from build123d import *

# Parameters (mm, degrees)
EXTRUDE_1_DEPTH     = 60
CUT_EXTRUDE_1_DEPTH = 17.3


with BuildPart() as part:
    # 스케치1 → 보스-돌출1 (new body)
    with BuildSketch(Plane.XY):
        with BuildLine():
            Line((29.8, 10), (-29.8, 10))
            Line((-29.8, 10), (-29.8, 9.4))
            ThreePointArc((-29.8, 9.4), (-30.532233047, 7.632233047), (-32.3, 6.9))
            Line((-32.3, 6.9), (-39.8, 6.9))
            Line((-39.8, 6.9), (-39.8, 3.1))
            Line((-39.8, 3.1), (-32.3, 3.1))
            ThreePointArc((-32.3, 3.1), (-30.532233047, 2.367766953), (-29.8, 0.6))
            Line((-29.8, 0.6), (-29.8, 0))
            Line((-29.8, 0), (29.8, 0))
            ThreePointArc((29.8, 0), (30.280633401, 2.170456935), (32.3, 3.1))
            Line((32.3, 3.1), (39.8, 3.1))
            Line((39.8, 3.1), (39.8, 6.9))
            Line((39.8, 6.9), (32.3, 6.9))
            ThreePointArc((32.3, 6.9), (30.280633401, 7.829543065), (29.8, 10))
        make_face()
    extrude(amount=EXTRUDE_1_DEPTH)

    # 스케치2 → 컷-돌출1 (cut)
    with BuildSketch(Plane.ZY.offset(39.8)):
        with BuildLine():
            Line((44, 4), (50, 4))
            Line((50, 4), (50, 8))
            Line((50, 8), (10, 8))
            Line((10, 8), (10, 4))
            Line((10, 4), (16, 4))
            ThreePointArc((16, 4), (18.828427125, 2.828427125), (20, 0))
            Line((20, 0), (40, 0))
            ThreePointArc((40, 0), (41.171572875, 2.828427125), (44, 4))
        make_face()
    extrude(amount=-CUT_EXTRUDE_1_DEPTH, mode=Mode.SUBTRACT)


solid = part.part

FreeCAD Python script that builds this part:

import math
import FreeCAD as App
import Part
import Sketcher

V = App.Vector
Q = App.Units.Quantity

doc = App.newDocument("Part")
body = doc.addObject("PartDesign::Body", "Body")

# Sketch on XY plane
sketch1 = body.newObject("Sketcher::SketchObject", "Sketch")
sketch1.AttachmentSupport = (doc.getObject("XY_Plane"), [""])
sketch1.MapMode = "FlatFace"
sketch1.addGeometry([
    Part.LineSegment(V(29.8, 10, 0), V(-29.8, 10, 0)),  # 0
    Part.LineSegment(V(-29.8, 10, 0), V(-29.8, 9.4, 0)),  # 1
    Part.ArcOfCircle(Part.Circle(V(-32.3, 9.4, 0), V(0, 0, 1), 2.5), math.radians(-90), math.radians(0)),  # 2
    Part.LineSegment(V(-32.3, 6.9, 0), V(-39.8, 6.9, 0)),  # 3
    Part.LineSegment(V(-39.8, 6.9, 0), V(-39.8, 3.1, 0)),  # 4
    Part.LineSegment(V(-39.8, 3.1, 0), V(-32.3, 3.1, 0)),  # 5
    Part.ArcOfCircle(Part.Circle(V(-32.3, 0.6, 0), V(0, 0, 1), 2.5), math.radians(0), math.radians(90)),  # 6
    Part.LineSegment(V(-29.8, 0.6, 0), V(-29.8, 0, 0)),  # 7
    Part.LineSegment(V(-29.8, 0, 0), V(29.8, 0, 0)),  # 8
    Part.ArcOfCircle(Part.Circle(V(32.226666, 0.601076, 0), V(0, 0, 1), 2.5), math.radians(88.319067), math.radians(193.91194)),  # 9
    Part.LineSegment(V(32.3, 3.1, 0), V(39.8, 3.1, 0)),  # 10
    Part.LineSegment(V(39.8, 3.1, 0), V(39.8, 6.9, 0)),  # 11
    Part.LineSegment(V(39.8, 6.9, 0), V(32.3, 6.9, 0)),  # 12
    Part.ArcOfCircle(Part.Circle(V(32.226666, 9.398924, 0), V(0, 0, 1), 2.5), math.radians(166.08806), math.radians(271.680933)),  # 13
], False)
sketch1.addConstraint([
    Sketcher.Constraint("Coincident", 0, 2, 1, 1),
    Sketcher.Constraint("Tangent", 1, 2, 2, 2),
    Sketcher.Constraint("Tangent", 2, 1, 3, 1),
    Sketcher.Constraint("Coincident", 3, 2, 4, 1),
    Sketcher.Constraint("Coincident", 4, 2, 5, 1),
    Sketcher.Constraint("Tangent", 5, 2, 6, 2),
    Sketcher.Constraint("Tangent", 6, 1, 7, 1),
    Sketcher.Constraint("Coincident", 7, 2, 8, 1),
    Sketcher.Constraint("Coincident", 8, 2, 9, 2),
    Sketcher.Constraint("Coincident", 9, 1, 10, 1),
    Sketcher.Constraint("Coincident", 10, 2, 11, 1),
    Sketcher.Constraint("Coincident", 11, 2, 12, 1),
    Sketcher.Constraint("Coincident", 12, 2, 13, 2),
    Sketcher.Constraint("Coincident", 13, 1, 0, 1),
    Sketcher.Constraint("Horizontal", 0),
    Sketcher.Constraint("Vertical", 1),
    Sketcher.Constraint("Horizontal", 3),
    Sketcher.Constraint("Vertical", 4),
    Sketcher.Constraint("Horizontal", 5),
    Sketcher.Constraint("Vertical", 7),
    Sketcher.Constraint("Horizontal", 8),
    Sketcher.Constraint("Horizontal", 10),
    Sketcher.Constraint("Vertical", 11),
    Sketcher.Constraint("Horizontal", 12),
    Sketcher.Constraint("Equal", 2, 6),
    Sketcher.Constraint("Equal", 6, 9),
    Sketcher.Constraint("Equal", 9, 13),
    Sketcher.Constraint("Symmetric", 7, 2, 8, 2, -1, 1),
    Sketcher.Constraint("Symmetric", 5, 2, 9, 1, -2),
    Sketcher.Constraint("Symmetric", 3, 2, 11, 2, -2),
    Sketcher.Constraint("Vertical", 2, 3, 6, 3),
    Sketcher.Constraint("Vertical", 9, 3, 13, 3),
    Sketcher.Constraint("Vertical", 9, 1, 12, 2),
    Sketcher.Constraint("Vertical", 8, 2, 13, 1),
    Sketcher.Constraint("Radius", 2, Q("2.5 mm")),
    Sketcher.Constraint("DistanceX", 0, 2, 0, 1, Q("59.6 mm")),
    Sketcher.Constraint("DistanceX", 3, 2, 3, 1, Q("7.5 mm")),
    Sketcher.Constraint("DistanceY", 1, 2, 1, 1, Q("0.6 mm")),
    Sketcher.Constraint("DistanceY", 4, 2, 4, 1, Q("3.8 mm")),
])
pad1 = body.newObject("PartDesign::Pad", "Pad")
pad1.Profile = sketch1
pad1.Length = 60

# Sketch on YZ plane
sketch2 = body.newObject("Sketcher::SketchObject", "Sketch001")
sketch2.AttachmentSupport = (doc.getObject("YZ_Plane"), [""])
sketch2.MapMode = "FlatFace"
sketch2.AttachmentOffset = App.Placement(V(0, 0, -39.8), App.Rotation())
sketch2.addGeometry([
    Part.LineSegment(V(4, 44, 0), V(4, 50, 0)),  # 0
    Part.LineSegment(V(4, 50, 0), V(8, 50, 0)),  # 1
    Part.LineSegment(V(8, 50, 0), V(8, 10, 0)),  # 2
    Part.LineSegment(V(8, 10, 0), V(4, 10, 0)),  # 3
    Part.LineSegment(V(4, 10, 0), V(4, 16, 0)),  # 4
    Part.ArcOfCircle(Part.Circle(V(0, 16, 0), V(0, 0, 1), 4), math.radians(0), math.radians(90)),  # 5
    Part.LineSegment(V(0, 20, 0), V(0, 40, 0)),  # 6
    Part.ArcOfCircle(Part.Circle(V(0, 44, 0), V(0, 0, 1), 4), math.radians(-90), math.radians(0)),  # 7
], False)
sketch2.addConstraint([
    Sketcher.Constraint("Coincident", 0, 2, 1, 1),
    Sketcher.Constraint("Coincident", 1, 2, 2, 1),
    Sketcher.Constraint("Coincident", 2, 2, 3, 1),
    Sketcher.Constraint("Coincident", 3, 2, 4, 1),
    Sketcher.Constraint("Tangent", 4, 2, 5, 1),
    Sketcher.Constraint("Coincident", 5, 2, 6, 1),
    Sketcher.Constraint("Coincident", 6, 2, 7, 1),
    Sketcher.Constraint("Tangent", 7, 2, 0, 1),
    Sketcher.Constraint("Vertical", 0),
    Sketcher.Constraint("Horizontal", 1),
    Sketcher.Constraint("Vertical", 2),
    Sketcher.Constraint("Horizontal", 3),
    Sketcher.Constraint("Vertical", 4),
    Sketcher.Constraint("Vertical", 6),
    Sketcher.Constraint("Equal", 5, 7),
    Sketcher.Constraint("PointOnObject", 5, 3, -2),
    Sketcher.Constraint("PointOnObject", 7, 3, -2),
    Sketcher.Constraint("PointOnObject", 5, 2, -2),
    Sketcher.Constraint("Equal", 0, 4),
    Sketcher.Constraint("Radius", 5, Q("4 mm")),
    Sketcher.Constraint("DistanceX", 1, 1, 1, 2, Q("4 mm")),
    Sketcher.Constraint("DistanceY", 0, 1, 0, 2, Q("6 mm")),
    Sketcher.Constraint("DistanceY", 2, 2, 2, 1, Q("40 mm")),
    Sketcher.Constraint("DistanceY", -1, 1, 5, 3, Q("16 mm")),
])
pocket1 = body.newObject("PartDesign::Pocket", "Pocket")
pocket1.Profile = sketch2
pocket1.Length = 17.3
pocket1.Reversed = True

doc.recompute()
